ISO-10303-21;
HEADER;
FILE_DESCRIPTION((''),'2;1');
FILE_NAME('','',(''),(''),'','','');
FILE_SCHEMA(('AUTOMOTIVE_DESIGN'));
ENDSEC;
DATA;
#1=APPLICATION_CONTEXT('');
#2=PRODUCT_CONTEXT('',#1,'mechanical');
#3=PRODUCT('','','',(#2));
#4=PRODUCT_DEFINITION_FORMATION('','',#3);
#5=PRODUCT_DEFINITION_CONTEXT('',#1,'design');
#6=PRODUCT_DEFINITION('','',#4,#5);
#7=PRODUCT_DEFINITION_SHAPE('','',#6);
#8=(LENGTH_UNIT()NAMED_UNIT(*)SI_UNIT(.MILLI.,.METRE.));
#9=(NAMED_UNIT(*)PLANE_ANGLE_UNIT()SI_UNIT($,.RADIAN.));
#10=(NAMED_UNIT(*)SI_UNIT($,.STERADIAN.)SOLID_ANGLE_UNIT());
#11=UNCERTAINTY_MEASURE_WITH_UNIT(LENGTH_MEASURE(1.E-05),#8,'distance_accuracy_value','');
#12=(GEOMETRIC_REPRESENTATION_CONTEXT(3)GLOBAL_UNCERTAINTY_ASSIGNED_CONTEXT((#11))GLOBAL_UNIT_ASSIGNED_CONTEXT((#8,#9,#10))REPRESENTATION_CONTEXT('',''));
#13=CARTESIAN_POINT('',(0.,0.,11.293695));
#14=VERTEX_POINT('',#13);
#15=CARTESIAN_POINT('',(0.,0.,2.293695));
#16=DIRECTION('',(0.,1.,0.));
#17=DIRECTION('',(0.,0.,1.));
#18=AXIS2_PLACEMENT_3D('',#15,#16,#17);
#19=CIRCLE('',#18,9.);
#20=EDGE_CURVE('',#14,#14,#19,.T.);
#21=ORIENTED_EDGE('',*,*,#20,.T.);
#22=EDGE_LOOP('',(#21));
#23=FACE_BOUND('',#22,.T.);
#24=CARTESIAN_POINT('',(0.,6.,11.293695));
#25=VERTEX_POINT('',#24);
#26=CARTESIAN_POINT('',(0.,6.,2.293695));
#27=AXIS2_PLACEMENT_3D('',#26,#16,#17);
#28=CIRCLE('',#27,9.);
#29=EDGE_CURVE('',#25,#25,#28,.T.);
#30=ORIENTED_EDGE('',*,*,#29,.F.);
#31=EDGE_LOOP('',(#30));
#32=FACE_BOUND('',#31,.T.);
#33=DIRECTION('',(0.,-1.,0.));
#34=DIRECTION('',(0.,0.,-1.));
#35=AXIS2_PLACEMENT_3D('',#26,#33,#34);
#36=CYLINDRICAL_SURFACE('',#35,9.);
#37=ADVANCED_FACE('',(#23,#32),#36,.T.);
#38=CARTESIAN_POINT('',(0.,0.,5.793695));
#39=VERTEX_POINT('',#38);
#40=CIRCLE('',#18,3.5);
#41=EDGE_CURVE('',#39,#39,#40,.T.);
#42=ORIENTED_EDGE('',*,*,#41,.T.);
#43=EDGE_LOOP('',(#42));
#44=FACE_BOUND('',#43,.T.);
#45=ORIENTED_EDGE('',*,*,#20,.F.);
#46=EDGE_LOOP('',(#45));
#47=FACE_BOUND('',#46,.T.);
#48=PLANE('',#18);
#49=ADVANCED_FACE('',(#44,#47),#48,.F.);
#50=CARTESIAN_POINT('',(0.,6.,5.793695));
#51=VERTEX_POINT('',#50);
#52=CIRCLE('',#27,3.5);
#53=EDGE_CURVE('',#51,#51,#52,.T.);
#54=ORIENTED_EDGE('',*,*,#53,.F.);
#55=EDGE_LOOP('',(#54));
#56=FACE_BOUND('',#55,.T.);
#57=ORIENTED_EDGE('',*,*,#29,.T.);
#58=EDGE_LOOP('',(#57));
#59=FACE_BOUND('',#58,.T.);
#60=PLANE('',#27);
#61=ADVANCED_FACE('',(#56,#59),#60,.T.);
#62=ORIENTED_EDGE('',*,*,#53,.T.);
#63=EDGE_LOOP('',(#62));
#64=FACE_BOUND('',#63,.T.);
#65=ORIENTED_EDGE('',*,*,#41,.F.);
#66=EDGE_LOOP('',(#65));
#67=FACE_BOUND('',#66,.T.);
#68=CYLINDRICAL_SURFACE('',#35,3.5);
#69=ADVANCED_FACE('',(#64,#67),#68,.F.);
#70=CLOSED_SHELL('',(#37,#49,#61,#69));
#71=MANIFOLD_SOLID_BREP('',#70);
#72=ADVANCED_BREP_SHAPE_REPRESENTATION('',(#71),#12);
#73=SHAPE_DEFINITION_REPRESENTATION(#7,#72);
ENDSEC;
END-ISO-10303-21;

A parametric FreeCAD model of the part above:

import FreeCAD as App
import Part
import Sketcher
Q = App.Units.Quantity

doc = App.newDocument("Part")
body = doc.addObject("PartDesign::Body", "Body")

sketch1 = body.newObject("Sketcher::SketchObject", "Sketch")
sketch1.AttachmentSupport = (doc.getObject("XZ_Plane"), [""])
sketch1.MapMode = "FlatFace"
sketch1.addGeometry([
    Part.Circle(App.Vector(0, 2.293695, 0), App.Vector(0, 0, 1), 9),
    Part.Circle(App.Vector(0, 2.293695, 0), App.Vector(0, 0, 1), 3.5),
], False)
sketch1.addConstraint([
    Sketcher.Constraint("Coincident", 1, 3, 0, 3),
    Sketcher.Constraint("PointOnObject", 0, 3, -2),
    Sketcher.Constraint("Diameter", 0, Q("18 mm")),
    Sketcher.Constraint("Diameter", 1, Q("7 mm")),
    Sketcher.Constraint("DistanceY", -1, 1, 0, 3, Q("2.293695 mm")),
])
pad1 = body.newObject("PartDesign::Pad", "Pad")
pad1.Profile = sketch1
pad1.Length = 6
pad1.Reversed = True

doc.recompute()
